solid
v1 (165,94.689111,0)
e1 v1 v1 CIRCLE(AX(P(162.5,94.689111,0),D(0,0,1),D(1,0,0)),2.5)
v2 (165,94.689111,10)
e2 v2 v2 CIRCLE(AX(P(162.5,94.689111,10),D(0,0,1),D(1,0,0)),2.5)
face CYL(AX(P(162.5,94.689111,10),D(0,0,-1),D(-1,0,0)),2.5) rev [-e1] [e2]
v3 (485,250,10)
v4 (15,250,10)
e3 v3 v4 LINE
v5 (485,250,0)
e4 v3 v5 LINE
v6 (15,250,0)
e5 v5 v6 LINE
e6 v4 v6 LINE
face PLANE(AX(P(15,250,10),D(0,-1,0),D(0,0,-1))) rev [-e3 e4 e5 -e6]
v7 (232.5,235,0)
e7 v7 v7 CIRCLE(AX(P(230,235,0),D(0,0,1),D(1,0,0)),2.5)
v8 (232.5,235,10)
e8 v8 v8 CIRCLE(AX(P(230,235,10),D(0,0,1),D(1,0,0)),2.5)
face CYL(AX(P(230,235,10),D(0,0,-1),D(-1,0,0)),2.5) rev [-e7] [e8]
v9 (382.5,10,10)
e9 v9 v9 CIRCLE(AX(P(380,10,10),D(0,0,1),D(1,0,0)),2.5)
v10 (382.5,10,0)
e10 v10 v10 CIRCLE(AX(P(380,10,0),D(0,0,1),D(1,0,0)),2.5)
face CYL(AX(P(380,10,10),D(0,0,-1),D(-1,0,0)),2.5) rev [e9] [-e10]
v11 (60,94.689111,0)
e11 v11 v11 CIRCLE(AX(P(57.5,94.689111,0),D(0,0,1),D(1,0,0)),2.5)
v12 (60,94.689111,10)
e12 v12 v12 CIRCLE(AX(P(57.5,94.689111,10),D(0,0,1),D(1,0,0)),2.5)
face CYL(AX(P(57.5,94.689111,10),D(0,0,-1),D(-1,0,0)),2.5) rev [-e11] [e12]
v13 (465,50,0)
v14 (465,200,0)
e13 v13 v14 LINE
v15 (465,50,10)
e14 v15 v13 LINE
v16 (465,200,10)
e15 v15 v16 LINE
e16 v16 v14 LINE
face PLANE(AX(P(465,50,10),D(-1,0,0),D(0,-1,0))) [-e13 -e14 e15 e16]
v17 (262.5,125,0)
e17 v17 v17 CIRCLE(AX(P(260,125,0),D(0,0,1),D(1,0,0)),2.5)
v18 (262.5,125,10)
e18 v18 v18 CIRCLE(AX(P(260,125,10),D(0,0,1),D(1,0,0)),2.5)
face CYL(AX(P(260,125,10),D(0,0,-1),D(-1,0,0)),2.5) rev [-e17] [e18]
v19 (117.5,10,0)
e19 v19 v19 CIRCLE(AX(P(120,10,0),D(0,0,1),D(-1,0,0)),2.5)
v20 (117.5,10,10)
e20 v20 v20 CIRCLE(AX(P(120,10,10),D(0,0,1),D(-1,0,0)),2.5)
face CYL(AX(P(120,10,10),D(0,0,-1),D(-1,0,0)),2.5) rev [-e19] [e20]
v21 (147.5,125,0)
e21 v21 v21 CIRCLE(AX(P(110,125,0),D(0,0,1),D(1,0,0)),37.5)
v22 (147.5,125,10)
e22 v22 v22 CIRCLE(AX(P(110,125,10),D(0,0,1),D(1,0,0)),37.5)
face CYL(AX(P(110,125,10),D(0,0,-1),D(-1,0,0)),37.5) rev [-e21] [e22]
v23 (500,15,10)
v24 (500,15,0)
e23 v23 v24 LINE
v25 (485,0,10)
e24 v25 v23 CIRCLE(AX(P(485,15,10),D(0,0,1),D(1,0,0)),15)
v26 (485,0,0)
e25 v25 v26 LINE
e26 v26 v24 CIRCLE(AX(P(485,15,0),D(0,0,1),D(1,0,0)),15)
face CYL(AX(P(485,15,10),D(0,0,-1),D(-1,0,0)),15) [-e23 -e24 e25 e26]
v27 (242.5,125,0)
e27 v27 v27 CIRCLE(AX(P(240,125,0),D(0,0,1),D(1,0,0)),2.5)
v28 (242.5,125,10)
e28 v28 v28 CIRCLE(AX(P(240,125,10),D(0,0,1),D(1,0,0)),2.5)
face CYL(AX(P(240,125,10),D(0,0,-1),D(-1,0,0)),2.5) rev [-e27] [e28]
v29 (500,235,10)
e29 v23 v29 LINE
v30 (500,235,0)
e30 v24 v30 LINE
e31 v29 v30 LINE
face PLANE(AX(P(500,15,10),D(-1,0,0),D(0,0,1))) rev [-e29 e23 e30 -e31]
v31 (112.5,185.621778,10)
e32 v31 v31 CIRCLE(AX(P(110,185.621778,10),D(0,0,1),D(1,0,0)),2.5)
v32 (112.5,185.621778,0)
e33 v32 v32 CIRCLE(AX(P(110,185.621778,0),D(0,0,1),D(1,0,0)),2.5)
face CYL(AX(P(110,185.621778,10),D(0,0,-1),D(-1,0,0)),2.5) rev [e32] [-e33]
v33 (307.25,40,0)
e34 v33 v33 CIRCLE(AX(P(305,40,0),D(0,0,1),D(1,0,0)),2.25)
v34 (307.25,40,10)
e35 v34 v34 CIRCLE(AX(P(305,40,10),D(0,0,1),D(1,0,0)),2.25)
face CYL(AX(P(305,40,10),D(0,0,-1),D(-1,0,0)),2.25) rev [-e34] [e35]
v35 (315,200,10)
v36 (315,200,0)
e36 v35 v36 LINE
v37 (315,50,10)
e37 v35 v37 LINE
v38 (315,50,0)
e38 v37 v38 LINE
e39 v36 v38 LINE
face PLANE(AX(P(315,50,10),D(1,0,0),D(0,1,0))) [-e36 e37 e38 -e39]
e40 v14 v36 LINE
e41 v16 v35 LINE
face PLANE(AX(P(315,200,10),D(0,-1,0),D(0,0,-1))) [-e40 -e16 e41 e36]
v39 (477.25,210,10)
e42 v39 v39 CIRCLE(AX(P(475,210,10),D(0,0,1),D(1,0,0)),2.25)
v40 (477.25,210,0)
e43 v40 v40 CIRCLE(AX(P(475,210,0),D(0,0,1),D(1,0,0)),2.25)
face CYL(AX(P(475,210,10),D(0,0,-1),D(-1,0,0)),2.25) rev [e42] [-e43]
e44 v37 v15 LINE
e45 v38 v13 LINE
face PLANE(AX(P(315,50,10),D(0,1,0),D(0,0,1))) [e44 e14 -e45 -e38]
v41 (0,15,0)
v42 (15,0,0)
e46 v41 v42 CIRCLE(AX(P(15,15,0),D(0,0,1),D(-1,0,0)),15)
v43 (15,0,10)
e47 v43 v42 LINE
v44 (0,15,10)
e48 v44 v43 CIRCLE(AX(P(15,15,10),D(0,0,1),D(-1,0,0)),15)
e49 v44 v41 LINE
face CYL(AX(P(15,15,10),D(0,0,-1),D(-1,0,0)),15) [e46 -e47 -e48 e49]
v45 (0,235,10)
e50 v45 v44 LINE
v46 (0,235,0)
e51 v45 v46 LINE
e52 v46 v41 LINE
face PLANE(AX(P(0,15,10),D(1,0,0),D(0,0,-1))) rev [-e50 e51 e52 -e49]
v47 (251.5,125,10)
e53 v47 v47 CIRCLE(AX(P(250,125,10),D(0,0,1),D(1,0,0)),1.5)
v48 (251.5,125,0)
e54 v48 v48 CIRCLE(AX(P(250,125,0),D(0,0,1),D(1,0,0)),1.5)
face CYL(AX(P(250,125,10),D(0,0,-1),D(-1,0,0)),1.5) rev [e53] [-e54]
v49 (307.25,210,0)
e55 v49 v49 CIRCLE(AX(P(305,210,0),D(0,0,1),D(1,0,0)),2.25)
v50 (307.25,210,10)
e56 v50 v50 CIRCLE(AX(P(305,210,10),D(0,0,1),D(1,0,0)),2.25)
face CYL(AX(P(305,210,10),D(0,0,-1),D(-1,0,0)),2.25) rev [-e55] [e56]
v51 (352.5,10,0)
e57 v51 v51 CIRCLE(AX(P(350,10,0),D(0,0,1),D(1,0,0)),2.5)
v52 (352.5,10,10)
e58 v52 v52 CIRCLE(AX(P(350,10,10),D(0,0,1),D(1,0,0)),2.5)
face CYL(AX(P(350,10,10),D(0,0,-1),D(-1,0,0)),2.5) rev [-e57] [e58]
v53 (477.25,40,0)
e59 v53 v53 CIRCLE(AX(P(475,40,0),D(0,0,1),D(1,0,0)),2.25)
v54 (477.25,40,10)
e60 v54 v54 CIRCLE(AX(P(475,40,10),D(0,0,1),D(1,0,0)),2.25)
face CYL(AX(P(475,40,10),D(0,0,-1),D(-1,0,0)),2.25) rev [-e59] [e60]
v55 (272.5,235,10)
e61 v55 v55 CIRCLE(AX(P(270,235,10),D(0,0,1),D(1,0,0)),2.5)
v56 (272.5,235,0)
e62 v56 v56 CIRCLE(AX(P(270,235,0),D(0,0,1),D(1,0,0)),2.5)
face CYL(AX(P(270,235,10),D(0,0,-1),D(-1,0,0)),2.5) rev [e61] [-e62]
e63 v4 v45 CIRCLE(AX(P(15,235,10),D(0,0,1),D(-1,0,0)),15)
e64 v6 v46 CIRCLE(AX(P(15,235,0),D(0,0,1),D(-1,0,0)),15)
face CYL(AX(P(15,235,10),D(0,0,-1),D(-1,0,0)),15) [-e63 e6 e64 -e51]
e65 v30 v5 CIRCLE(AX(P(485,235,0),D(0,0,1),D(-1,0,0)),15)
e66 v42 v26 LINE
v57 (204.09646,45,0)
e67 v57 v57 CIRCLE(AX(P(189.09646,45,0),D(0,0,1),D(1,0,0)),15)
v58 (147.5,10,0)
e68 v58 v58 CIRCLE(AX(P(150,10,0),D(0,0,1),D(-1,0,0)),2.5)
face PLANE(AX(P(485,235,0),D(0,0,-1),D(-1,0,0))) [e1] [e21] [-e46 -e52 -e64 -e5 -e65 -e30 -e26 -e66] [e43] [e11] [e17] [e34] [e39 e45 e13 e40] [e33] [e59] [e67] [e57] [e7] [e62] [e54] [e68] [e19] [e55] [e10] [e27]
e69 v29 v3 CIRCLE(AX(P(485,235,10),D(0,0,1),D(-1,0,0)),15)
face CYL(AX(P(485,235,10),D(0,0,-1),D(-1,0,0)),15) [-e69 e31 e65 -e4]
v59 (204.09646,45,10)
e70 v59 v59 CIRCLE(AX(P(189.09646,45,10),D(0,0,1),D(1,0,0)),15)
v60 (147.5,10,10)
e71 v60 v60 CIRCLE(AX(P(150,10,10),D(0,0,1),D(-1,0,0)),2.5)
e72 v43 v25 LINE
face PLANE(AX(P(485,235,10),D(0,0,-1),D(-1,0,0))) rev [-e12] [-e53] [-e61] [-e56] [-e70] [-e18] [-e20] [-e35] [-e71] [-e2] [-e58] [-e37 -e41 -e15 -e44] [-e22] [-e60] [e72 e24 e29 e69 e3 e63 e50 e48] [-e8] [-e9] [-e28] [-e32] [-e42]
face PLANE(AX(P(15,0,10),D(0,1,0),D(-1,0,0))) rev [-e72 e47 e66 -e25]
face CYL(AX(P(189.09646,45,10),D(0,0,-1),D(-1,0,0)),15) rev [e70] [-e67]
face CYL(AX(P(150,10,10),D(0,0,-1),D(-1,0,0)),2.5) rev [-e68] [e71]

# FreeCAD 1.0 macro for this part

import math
import FreeCAD as App
import Part
import Sketcher
from FreeCAD import Vector

doc = App.newDocument("Part")
body = doc.addObject("PartDesign::Body", "Body")

# Sketch on XY plane
sketch1 = doc.addObject("Sketcher::SketchObject", "Sketch")
body.addObject(sketch1)
sketch1.AttachmentSupport = (doc.XY_Plane, [""])
sketch1.MapMode = "FlatFace"
sketch1.addGeometry(Part.LineSegment(Vector(15, 0, 0), Vector(485, 0, 0)), False)
sketch1.addGeometry(Part.ArcOfCircle(Part.Circle(Vector(485, 15, 0), Vector(0, 0, 1), 15), math.radians(-90), math.radians(0)), False)
sketch1.addGeometry(Part.LineSegment(Vector(500, 15, 0), Vector(500, 235, 0)), False)
sketch1.addGeometry(Part.ArcOfCircle(Part.Circle(Vector(485, 235, 0), Vector(0, 0, 1), 15), math.radians(0), math.radians(90)), False)
sketch1.addGeometry(Part.LineSegment(Vector(485, 250, 0), Vector(15, 250, 0)), False)
sketch1.addGeometry(Part.ArcOfCircle(Part.Circle(Vector(15, 235, 0), Vector(0, 0, 1), 15), math.radians(90), math.radians(180)), False)
sketch1.addGeometry(Part.LineSegment(Vector(0, 235, 0), Vector(0, 15, 0)), False)
sketch1.addGeometry(Part.ArcOfCircle(Part.Circle(Vector(15, 15, 0), Vector(0, 0, 1), 15), math.radians(180), math.radians(270)), False)
sketch1.addGeometry(Part.Circle(Vector(120, 10, 0), Vector(0, 0, 1), 2.5), False)
sketch1.addGeometry(Part.Circle(Vector(150, 10, 0), Vector(0, 0, 1), 2.5), False)
sketch1.addGeometry(Part.Circle(Vector(189.09646, 45, 0), Vector(0, 0, 1), 15), False)
sketch1.addGeometry(Part.Circle(Vector(57.5, 94.689111, 0), Vector(0, 0, 1), 2.5), False)
sketch1.addGeometry(Part.Circle(Vector(162.5, 94.689111, 0), Vector(0, 0, 1), 2.5), False)
sketch1.addGeometry(Part.Circle(Vector(350, 10, 0), Vector(0, 0, 1), 2.5), False)
sketch1.addGeometry(Part.Circle(Vector(305, 40, 0), Vector(0, 0, 1), 2.25), False)
sketch1.addGeometry(Part.Circle(Vector(380, 10, 0), Vector(0, 0, 1), 2.5), False)
sketch1.addGeometry(Part.Circle(Vector(475, 40, 0), Vector(0, 0, 1), 2.25), False)
sketch1.addGeometry(Part.Circle(Vector(110, 125, 0), Vector(0, 0, 1), 37.5), False)
sketch1.addGeometry(Part.Circle(Vector(240, 125, 0), Vector(0, 0, 1), 2.5), False)
sketch1.addGeometry(Part.Circle(Vector(250, 125, 0), Vector(0, 0, 1), 1.5), False)
sketch1.addGeometry(Part.Circle(Vector(260, 125, 0), Vector(0, 0, 1), 2.5), False)
sketch1.addGeometry(Part.Circle(Vector(110, 185.621778, 0), Vector(0, 0, 1), 2.5), False)
sketch1.addGeometry(Part.Circle(Vector(230, 235, 0), Vector(0, 0, 1), 2.5), False)
sketch1.addGeometry(Part.LineSegment(Vector(465, 50, 0), Vector(315, 50, 0)), False)
sketch1.addGeometry(Part.LineSegment(Vector(315, 50, 0), Vector(315, 200, 0)), False)
sketch1.addGeometry(Part.LineSegment(Vector(315, 200, 0), Vector(465, 200, 0)), False)
sketch1.addGeometry(Part.LineSegment(Vector(465, 200, 0), Vector(465, 50, 0)), False)
sketch1.addGeometry(Part.Circle(Vector(305, 210, 0), Vector(0, 0, 1), 2.25), False)
sketch1.addGeometry(Part.Circle(Vector(270, 235, 0), Vector(0, 0, 1), 2.5), False)
sketch1.addGeometry(Part.Circle(Vector(475, 210, 0), Vector(0, 0, 1), 2.25), False)
sketch1.addConstraint(Sketcher.Constraint("Tangent", 0, 2, 1, 1))
sketch1.addConstraint(Sketcher.Constraint("Tangent", 1, 2, 2, 1))
sketch1.addConstraint(Sketcher.Constraint("Tangent", 2, 2, 3, 1))
sketch1.addConstraint(Sketcher.Constraint("Tangent", 3, 2, 4, 1))
sketch1.addConstraint(Sketcher.Constraint("Tangent", 4, 2, 5, 1))
sketch1.addConstraint(Sketcher.Constraint("Tangent", 5, 2, 6, 1))
sketch1.addConstraint(Sketcher.Constraint("Tangent", 6, 2, 7, 1))
sketch1.addConstraint(Sketcher.Constraint("Tangent", 7, 2, 0, 1))
sketch1.addConstraint(Sketcher.Constraint("Coincident", 23, 2, 24, 1))
sketch1.addConstraint(Sketcher.Constraint("Coincident", 24, 2, 25, 1))
sketch1.addConstraint(Sketcher.Constraint("Coincident", 25, 2, 26, 1))
sketch1.addConstraint(Sketcher.Constraint("Coincident", 26, 2, 23, 1))
sketch1.addConstraint(Sketcher.Constraint("Horizontal", 0))
sketch1.addConstraint(Sketcher.Constraint("Vertical", 2))
sketch1.addConstraint(Sketcher.Constraint("Horizontal", 4))
sketch1.addConstraint(Sketcher.Constraint("Vertical", 6))
sketch1.addConstraint(Sketcher.Constraint("Horizontal", 23))
sketch1.addConstraint(Sketcher.Constraint("Vertical", 24))
sketch1.addConstraint(Sketcher.Constraint("Horizontal", 25))
sketch1.addConstraint(Sketcher.Constraint("Vertical", 26))
sketch1.addConstraint(Sketcher.Constraint("Equal", 1, 3))
sketch1.addConstraint(Sketcher.Constraint("Equal", 3, 5))
sketch1.addConstraint(Sketcher.Constraint("Equal", 5, 7))
sketch1.addConstraint(Sketcher.Constraint("Equal", 8, 9))
sketch1.addConstraint(Sketcher.Constraint("Equal", 7, 10))
sketch1.addConstraint(Sketcher.Constraint("Equal", 9, 11))
sketch1.addConstraint(Sketcher.Constraint("Equal", 11, 12))
sketch1.addConstraint(Sketcher.Constraint("Equal", 12, 13))
sketch1.addConstraint(Sketcher.Constraint("Equal", 13, 15))
sketch1.addConstraint(Sketcher.Constraint("Equal", 14, 16))
sketch1.addConstraint(Sketcher.Constraint("Equal", 15, 18))
sketch1.addConstraint(Sketcher.Constraint("Equal", 18, 20))
sketch1.addConstraint(Sketcher.Constraint("Equal", 20, 21))
sketch1.addConstraint(Sketcher.Constraint("Equal", 21, 22))
sketch1.addConstraint(Sketcher.Constraint("Equal", 16, 27))
sketch1.addConstraint(Sketcher.Constraint("Equal", 22, 28))
sketch1.addConstraint(Sketcher.Constraint("Equal", 27, 29))
sketch1.addConstraint(Sketcher.Constraint("PointOnObject", 0, 2, -1))
sketch1.addConstraint(Sketcher.Constraint("PointOnObject", 5, 2, -2))
sketch1.addConstraint(Sketcher.Constraint("Horizontal", 8, 3, 9, 3))
sketch1.addConstraint(Sketcher.Constraint("Horizontal", 11, 3, 12, 3))
sketch1.addConstraint(Sketcher.Constraint("Horizontal", 9, 3, 13, 3))
sketch1.addConstraint(Sketcher.Constraint("Horizontal", 13, 3, 15, 3))
sketch1.addConstraint(Sketcher.Constraint("Horizontal", 14, 3, 16, 3))
sketch1.addConstraint(Sketcher.Constraint("Horizontal", 17, 3, 18, 3))
sketch1.addConstraint(Sketcher.Constraint("Horizontal", 18, 3, 19, 3))
sketch1.addConstraint(Sketcher.Constraint("Horizontal", 19, 3, 20, 3))
sketch1.addConstraint(Sketcher.Constraint("Horizontal", 5, 3, 22, 3))
sketch1.addConstraint(Sketcher.Constraint("Horizontal", 22, 3, 28, 3))
sketch1.addConstraint(Sketcher.Constraint("Horizontal", 27, 3, 29, 3))
sketch1.addConstraint(Sketcher.Constraint("Vertical", 17, 3, 21, 3))
sketch1.addConstraint(Sketcher.Constraint("Vertical", 14, 3, 27, 3))
sketch1.addConstraint(Sketcher.Constraint("Vertical", 16, 3, 29, 3))
sketch1.addConstraint(Sketcher.Constraint("Equal", 25, 24))
sketch1.addConstraint(Sketcher.Constraint("Diameter", 8, 5.0))
sketch1.addConstraint(Sketcher.Constraint("Diameter", 10, 30.0))
sketch1.addConstraint(Sketcher.Constraint("Diameter", 17, 75.0))
sketch1.addConstraint(Sketcher.Constraint("Diameter", 19, 3.0))
sketch1.addConstraint(Sketcher.Constraint("Diameter", 14, 4.5))
sketch1.addConstraint(Sketcher.Constraint("DistanceX", 0, 1, 0, 2, 470.0))
sketch1.addConstraint(Sketcher.Constraint("DistanceX", 23, 2, 23, 1, 150.0))
sketch1.addConstraint(Sketcher.Constraint("DistanceY", 2, 1, 2, 2, 220.0))
sketch1.addConstraint(Sketcher.Constraint("DistanceX", -1, 1, 8, 3, 120.0))
sketch1.addConstraint(Sketcher.Constraint("DistanceY", -1, 1, 8, 3, 10.0))
sketch1.addConstraint(Sketcher.Constraint("DistanceX", -1, 1, 9, 3, 150.0))
sketch1.addConstraint(Sketcher.Constraint("DistanceY", -1, 1, 10, 3, 45.0))
sketch1.addConstraint(Sketcher.Constraint("DistanceX", -1, 1, 13, 3, 350.0))
sketch1.addConstraint(Sketcher.Constraint("DistanceX", -1, 1, 14, 3, 305.0))
sketch1.addConstraint(Sketcher.Constraint("DistanceY", -1, 1, 14, 3, 40.0))
sketch1.addConstraint(Sketcher.Constraint("DistanceX", -1, 1, 15, 3, 380.0))
sketch1.addConstraint(Sketcher.Constraint("DistanceX", -1, 1, 16, 3, 475.0))
sketch1.addConstraint(Sketcher.Constraint("DistanceX", -1, 1, 17, 3, 110.0))
sketch1.addConstraint(Sketcher.Constraint("DistanceY", -1, 1, 17, 3, 125.0))
sketch1.addConstraint(Sketcher.Constraint("DistanceX", -1, 1, 18, 3, 240.0))
sketch1.addConstraint(Sketcher.Constraint("DistanceX", -1, 1, 19, 3, 250.0))
sketch1.addConstraint(Sketcher.Constraint("DistanceX", -1, 1, 20, 3, 260.0))
sketch1.addConstraint(Sketcher.Constraint("DistanceX", -1, 1, 22, 3, 230.0))
sketch1.addConstraint(Sketcher.Constraint("DistanceY", -1, 1, 27, 3, 210.0))
sketch1.addConstraint(Sketcher.Constraint("DistanceX", -1, 1, 28, 3, 270.0))
sketch1.addConstraint(Sketcher.Constraint("DistanceX", -1, 1, 23, 2, 315.0))
sketch1.addConstraint(Sketcher.Constraint("DistanceY", -1, 1, 23, 2, 50.0))
sketch1.addConstraint(Sketcher.Constraint("DistanceX", 11, 3, 12, 3, 105.0))
sketch1.addConstraint(Sketcher.Constraint("DistanceX", -1, 1, 11, 3, 57.5))
sketch1.addConstraint(Sketcher.Constraint("DistanceX", -1, 1, 10, 3, 189.09646))
sketch1.addConstraint(Sketcher.Constraint("DistanceY", -1, 1, 11, 3, 94.689111))
sketch1.addConstraint(Sketcher.Constraint("DistanceY", -1, 1, 21, 3, 185.621778))
pad1 = doc.addObject("PartDesign::Pad", "Pad")
body.addObject(pad1)
pad1.Profile = sketch1
pad1.Length = 10

doc.recompute()
